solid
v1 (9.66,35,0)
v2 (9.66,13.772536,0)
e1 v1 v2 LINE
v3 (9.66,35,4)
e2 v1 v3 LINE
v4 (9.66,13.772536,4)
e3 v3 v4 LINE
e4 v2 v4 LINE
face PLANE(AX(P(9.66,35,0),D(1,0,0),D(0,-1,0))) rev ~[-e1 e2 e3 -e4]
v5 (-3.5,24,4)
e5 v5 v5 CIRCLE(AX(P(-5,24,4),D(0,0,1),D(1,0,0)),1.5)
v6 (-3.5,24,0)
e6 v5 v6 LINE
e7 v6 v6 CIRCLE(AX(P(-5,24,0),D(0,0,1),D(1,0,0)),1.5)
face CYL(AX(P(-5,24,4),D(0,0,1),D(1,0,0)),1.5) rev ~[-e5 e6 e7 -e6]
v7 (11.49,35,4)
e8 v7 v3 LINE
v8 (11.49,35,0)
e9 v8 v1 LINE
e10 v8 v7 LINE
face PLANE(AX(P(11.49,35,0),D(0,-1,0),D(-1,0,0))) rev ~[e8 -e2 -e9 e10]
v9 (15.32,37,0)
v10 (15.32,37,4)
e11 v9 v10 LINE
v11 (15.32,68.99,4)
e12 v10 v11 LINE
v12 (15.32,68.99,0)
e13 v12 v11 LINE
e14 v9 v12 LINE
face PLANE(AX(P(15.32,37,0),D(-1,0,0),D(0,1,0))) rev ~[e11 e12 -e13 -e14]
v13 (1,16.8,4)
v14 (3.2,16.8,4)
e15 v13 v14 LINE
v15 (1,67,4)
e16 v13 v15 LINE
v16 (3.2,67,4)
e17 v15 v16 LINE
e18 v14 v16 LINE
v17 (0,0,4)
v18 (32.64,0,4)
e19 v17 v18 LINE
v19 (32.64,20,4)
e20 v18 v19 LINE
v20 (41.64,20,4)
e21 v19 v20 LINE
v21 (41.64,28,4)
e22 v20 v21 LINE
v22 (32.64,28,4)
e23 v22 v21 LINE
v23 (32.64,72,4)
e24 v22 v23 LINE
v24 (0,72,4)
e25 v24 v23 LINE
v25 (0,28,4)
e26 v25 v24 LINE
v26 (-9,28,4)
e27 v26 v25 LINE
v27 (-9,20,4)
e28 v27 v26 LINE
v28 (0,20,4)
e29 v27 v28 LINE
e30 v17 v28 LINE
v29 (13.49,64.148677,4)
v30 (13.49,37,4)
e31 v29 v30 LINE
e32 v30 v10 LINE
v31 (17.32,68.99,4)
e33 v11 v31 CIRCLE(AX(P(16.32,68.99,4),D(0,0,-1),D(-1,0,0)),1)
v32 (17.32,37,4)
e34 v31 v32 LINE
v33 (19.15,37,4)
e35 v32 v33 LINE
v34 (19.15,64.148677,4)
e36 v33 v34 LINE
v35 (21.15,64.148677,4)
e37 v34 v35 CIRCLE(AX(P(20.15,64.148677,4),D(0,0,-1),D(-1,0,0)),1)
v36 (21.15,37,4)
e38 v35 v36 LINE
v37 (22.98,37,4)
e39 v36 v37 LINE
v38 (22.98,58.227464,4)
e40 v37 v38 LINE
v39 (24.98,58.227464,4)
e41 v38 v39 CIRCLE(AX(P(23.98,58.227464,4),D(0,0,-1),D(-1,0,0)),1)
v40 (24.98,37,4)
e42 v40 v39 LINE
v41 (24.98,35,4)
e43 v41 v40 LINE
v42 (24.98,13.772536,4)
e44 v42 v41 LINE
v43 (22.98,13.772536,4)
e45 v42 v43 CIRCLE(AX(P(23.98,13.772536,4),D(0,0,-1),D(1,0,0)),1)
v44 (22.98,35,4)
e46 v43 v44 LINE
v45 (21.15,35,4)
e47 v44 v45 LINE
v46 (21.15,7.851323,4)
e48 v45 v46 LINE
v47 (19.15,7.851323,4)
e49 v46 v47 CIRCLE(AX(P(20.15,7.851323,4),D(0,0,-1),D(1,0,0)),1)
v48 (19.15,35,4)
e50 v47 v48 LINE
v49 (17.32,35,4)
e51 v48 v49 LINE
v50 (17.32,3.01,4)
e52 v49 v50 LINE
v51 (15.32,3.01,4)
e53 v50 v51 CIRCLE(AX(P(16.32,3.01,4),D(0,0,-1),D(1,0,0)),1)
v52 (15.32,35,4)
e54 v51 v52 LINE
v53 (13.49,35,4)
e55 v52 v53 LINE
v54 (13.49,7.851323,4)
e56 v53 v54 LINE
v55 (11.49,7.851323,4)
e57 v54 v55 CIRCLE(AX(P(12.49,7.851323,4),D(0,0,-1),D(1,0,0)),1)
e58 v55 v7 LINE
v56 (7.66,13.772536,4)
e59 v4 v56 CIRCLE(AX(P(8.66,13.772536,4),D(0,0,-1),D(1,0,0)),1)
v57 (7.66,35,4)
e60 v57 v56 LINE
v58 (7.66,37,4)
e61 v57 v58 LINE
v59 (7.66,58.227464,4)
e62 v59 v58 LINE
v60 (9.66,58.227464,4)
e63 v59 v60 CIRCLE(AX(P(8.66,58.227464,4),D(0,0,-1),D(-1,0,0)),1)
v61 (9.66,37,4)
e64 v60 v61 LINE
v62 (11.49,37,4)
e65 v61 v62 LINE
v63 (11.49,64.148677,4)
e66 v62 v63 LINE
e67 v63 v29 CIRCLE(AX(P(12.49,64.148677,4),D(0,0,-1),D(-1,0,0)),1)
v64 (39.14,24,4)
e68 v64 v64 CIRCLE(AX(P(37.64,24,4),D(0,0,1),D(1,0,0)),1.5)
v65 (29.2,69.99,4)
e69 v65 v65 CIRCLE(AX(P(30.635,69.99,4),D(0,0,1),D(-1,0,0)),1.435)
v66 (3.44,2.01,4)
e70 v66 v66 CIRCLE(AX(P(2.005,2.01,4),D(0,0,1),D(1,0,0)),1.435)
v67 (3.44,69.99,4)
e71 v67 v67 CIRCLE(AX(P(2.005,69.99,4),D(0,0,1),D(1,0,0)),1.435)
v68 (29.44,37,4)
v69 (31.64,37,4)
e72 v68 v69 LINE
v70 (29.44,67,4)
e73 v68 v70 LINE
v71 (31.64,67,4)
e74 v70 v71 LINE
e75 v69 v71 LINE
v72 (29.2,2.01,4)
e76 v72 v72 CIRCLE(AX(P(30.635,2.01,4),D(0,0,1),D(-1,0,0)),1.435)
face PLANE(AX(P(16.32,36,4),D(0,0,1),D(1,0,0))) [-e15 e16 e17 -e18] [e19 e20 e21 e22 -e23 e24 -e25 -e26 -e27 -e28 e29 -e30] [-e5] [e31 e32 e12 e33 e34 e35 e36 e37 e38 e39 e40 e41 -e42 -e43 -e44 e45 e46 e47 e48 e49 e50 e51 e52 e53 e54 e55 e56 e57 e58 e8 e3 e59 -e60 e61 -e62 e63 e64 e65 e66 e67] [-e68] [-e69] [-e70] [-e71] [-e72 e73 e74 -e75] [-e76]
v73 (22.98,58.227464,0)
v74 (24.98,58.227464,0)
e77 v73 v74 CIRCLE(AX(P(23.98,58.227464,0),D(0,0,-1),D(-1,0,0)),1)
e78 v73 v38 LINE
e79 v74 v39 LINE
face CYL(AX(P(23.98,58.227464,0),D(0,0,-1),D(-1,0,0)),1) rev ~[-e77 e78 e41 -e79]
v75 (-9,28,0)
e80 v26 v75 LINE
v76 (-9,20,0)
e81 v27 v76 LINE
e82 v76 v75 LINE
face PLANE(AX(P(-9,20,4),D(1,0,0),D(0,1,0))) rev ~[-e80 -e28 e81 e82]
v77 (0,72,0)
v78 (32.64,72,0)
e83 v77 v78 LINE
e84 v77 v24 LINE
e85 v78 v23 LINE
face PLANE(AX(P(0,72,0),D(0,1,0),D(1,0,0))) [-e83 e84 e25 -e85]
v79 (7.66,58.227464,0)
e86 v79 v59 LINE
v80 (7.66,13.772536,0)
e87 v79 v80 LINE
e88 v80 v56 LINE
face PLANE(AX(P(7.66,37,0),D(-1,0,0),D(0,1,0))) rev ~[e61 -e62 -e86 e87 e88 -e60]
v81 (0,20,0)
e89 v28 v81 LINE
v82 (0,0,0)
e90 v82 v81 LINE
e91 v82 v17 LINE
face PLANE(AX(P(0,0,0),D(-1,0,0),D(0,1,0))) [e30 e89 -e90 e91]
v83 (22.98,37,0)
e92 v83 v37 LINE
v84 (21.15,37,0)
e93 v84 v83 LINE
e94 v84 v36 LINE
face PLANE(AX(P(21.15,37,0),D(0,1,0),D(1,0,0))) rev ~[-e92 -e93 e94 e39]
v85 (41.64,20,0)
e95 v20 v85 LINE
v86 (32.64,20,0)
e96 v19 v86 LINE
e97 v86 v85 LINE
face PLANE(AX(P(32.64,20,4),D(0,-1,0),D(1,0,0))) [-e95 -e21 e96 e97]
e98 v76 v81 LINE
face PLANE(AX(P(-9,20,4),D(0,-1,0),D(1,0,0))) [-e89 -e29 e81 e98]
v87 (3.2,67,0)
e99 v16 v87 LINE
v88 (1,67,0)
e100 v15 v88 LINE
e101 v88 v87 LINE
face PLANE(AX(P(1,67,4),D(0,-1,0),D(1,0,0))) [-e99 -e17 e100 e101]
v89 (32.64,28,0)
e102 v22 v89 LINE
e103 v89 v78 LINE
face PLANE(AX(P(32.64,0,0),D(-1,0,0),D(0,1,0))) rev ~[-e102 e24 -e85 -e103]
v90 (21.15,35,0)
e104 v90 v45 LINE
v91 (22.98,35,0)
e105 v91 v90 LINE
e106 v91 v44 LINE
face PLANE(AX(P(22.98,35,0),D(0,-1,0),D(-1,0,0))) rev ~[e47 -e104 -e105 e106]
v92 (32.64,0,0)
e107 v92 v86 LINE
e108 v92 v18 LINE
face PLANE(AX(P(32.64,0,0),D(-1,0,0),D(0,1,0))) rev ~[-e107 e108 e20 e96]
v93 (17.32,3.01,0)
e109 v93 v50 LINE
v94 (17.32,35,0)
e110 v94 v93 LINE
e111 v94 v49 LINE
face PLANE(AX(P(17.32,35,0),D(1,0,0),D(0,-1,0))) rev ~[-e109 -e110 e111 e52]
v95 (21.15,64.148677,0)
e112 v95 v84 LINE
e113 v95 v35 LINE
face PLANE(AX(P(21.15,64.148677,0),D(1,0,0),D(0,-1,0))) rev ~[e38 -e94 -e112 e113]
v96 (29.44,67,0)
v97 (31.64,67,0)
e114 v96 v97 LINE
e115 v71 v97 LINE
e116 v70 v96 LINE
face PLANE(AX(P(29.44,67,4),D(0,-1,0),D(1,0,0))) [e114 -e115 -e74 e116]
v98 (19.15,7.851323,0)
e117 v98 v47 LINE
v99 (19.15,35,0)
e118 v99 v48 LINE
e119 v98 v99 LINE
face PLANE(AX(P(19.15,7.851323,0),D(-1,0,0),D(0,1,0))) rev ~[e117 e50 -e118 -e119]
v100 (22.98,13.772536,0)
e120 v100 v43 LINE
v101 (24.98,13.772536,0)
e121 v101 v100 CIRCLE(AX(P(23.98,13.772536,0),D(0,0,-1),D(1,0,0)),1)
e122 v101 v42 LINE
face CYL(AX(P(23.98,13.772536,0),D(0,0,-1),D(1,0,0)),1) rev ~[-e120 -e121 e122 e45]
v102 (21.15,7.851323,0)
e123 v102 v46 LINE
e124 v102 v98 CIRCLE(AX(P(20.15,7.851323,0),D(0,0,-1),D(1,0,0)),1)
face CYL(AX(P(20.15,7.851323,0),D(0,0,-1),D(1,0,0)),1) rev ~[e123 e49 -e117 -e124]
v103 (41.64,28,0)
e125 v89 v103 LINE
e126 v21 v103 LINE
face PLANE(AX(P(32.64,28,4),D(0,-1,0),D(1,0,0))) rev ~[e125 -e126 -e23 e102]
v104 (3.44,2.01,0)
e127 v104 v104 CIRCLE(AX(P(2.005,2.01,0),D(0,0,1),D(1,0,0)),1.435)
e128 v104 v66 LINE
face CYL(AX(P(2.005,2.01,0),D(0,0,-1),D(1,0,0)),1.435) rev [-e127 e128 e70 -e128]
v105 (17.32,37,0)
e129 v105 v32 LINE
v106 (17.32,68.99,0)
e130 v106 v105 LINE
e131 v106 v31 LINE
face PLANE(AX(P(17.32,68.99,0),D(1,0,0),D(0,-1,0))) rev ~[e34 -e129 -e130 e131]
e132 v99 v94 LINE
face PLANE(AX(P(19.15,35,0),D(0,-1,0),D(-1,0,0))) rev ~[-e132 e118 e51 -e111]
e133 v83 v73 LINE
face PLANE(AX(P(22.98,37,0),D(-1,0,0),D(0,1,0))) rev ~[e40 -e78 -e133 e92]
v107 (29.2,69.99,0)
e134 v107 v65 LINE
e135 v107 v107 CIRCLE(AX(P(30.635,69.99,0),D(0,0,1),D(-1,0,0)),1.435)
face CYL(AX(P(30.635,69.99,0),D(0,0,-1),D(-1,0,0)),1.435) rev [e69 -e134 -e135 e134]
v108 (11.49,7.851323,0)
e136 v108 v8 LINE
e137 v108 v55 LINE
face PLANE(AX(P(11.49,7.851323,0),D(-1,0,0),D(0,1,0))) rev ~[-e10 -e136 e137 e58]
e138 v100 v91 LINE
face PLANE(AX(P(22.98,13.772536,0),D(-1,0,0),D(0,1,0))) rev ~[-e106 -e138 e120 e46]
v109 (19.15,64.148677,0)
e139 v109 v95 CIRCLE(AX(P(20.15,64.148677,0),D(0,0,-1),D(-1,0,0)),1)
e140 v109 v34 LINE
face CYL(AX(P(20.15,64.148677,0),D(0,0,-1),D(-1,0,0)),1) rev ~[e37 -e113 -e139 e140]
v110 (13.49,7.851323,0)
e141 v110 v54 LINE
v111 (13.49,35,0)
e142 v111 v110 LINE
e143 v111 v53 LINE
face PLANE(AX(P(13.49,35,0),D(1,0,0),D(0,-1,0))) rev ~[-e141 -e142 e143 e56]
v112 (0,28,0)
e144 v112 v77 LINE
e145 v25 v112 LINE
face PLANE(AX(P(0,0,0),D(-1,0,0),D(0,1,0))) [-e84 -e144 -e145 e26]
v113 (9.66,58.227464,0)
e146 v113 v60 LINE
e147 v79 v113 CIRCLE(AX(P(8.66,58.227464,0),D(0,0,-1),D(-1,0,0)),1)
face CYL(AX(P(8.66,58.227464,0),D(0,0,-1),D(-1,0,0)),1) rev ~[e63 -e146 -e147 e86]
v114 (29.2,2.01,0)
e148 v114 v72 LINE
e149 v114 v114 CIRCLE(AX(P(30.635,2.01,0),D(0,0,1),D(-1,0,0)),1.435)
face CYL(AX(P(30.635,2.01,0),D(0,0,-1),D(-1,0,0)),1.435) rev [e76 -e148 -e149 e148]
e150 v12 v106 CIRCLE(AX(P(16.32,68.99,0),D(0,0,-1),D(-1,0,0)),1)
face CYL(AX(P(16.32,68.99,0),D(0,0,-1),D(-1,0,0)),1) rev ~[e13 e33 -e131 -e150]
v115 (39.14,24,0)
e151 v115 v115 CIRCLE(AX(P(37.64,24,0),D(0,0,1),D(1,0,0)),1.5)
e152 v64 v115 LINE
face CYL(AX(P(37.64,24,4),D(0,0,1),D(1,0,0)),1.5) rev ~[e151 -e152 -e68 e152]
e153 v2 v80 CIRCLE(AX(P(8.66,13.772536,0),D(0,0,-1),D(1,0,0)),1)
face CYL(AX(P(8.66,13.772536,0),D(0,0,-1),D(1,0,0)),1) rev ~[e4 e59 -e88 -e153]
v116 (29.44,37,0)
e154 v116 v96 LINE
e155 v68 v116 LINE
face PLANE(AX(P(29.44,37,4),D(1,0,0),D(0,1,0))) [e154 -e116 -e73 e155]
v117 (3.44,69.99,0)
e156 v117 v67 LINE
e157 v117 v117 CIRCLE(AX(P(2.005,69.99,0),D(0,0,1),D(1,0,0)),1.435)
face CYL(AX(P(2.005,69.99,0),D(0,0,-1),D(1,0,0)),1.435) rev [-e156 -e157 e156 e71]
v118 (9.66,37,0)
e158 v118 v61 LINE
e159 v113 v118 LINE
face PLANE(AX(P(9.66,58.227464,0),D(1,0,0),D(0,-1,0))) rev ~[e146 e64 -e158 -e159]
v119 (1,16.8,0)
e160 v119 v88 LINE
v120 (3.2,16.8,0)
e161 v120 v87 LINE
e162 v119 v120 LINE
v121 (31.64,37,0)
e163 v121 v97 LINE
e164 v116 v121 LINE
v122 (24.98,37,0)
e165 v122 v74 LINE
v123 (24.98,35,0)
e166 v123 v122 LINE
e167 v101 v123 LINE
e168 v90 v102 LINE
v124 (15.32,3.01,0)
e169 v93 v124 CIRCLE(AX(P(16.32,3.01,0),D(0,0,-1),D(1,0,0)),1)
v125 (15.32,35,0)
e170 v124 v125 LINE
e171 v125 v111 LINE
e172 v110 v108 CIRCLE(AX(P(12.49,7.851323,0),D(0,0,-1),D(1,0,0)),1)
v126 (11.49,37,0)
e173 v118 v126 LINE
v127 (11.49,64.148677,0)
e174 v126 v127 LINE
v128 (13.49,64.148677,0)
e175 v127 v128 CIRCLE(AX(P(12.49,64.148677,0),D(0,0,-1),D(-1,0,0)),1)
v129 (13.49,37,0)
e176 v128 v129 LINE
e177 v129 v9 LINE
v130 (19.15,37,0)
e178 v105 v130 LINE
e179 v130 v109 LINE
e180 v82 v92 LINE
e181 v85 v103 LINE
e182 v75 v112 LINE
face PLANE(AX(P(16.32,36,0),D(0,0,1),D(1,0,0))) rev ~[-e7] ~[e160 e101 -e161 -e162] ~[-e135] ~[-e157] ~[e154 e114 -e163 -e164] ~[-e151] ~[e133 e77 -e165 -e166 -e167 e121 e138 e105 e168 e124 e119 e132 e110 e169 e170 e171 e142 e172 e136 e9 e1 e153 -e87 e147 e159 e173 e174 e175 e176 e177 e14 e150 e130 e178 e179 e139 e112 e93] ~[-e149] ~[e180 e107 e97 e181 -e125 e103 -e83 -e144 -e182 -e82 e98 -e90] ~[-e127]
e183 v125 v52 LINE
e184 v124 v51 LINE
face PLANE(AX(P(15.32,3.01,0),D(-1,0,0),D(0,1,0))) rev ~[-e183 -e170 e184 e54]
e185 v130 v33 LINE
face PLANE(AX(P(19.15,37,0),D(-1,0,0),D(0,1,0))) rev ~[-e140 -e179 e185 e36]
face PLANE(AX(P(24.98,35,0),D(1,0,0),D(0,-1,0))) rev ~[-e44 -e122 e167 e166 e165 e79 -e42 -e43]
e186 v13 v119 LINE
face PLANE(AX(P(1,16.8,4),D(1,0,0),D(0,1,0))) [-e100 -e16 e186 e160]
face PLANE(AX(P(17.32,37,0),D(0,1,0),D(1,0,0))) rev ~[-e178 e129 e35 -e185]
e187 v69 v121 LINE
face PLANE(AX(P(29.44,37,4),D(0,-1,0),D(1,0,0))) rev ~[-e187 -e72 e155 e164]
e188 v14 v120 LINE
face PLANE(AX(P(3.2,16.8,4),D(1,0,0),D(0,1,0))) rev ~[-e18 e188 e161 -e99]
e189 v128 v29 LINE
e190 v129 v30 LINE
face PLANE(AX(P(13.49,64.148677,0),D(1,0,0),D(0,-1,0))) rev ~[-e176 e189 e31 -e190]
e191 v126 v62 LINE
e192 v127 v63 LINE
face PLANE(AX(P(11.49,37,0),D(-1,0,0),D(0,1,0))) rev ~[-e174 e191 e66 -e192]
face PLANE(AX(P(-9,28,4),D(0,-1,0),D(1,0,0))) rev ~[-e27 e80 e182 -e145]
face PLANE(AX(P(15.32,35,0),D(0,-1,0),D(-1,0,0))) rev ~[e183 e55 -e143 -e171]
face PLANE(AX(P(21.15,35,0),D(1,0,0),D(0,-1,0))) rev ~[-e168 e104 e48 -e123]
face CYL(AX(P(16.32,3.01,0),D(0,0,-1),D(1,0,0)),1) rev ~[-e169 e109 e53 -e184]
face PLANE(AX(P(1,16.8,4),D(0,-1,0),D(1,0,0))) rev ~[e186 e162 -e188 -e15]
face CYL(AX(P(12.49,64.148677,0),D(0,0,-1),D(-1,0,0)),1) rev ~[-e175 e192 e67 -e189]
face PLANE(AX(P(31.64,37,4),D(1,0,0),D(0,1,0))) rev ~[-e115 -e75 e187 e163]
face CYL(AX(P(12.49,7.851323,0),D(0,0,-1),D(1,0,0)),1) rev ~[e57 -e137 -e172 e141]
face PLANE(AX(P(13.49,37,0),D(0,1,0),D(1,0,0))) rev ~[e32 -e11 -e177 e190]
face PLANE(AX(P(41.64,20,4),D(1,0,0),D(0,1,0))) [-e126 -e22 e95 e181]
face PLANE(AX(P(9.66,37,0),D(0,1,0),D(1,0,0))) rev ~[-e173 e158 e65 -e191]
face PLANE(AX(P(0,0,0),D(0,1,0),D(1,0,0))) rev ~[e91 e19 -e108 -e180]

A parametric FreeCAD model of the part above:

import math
import FreeCAD as App
import Part
import Sketcher
from FreeCAD import Vector
Q = App.Units.Quantity


def add_polygon(sketch, points):
    """Adds a closed chain of lines whose ends are joined by coincident constraints."""
    first, n = sketch.GeometryCount, len(points)
    for a, b in zip(points, points[1:] + points[:1]):
        sketch.addGeometry(Part.LineSegment(App.Vector(*a, 0), App.Vector(*b, 0)), False)
    for i in range(n):
        sketch.addConstraint(Sketcher.Constraint("Coincident", first + i, 2, first + (i + 1) % n, 1))

doc = App.newDocument("Part")
body = doc.addObject("PartDesign::Body", "Body")

# Sketch on XY plane
sketch1 = body.newObject("Sketcher::SketchObject", "Sketch")
sketch1.AttachmentSupport = (doc.getObject("XY_Plane"), [""])
sketch1.MapMode = "FlatFace"
add_polygon(sketch1, [(0, 72), (0, 0), (32.64, 0), (32.64, 72)])  # lines 0-3
sketch1.addGeometry(Part.Circle(Vector(2.005, 2.01, 0), Vector(0, 0, 1), 1.435), False)  # 4
sketch1.addGeometry(Part.Circle(Vector(30.635, 2.01, 0), Vector(0, 0, 1), 1.435), False)  # 5
sketch1.addGeometry(Part.Circle(Vector(2.005, 69.99, 0), Vector(0, 0, 1), 1.435), False)  # 6
sketch1.addGeometry(Part.ArcOfCircle(Part.Circle(Vector(16.32, 3.01, 0), Vector(0, 0, 1), 1), math.radians(180), math.radians(360)), False)  # 7
sketch1.addGeometry(Part.LineSegment(Vector(15.32, 3.01, 0), Vector(15.32, 35, 0)), False)  # 8
sketch1.addGeometry(Part.LineSegment(Vector(15.32, 35, 0), Vector(13.49, 35, 0)), False)  # 9
sketch1.addGeometry(Part.LineSegment(Vector(13.49, 35, 0), Vector(13.49, 7.851323, 0)), False)  # 10
sketch1.addGeometry(Part.ArcOfCircle(Part.Circle(Vector(12.49, 7.851323, 0), Vector(0, 0, 1), 1), math.radians(180), math.radians(360)), False)  # 11
sketch1.addGeometry(Part.LineSegment(Vector(11.49, 7.851323, 0), Vector(11.49, 35, 0)), False)  # 12
sketch1.addGeometry(Part.LineSegment(Vector(11.49, 35, 0), Vector(9.66, 35, 0)), False)  # 13
sketch1.addGeometry(Part.LineSegment(Vector(9.66, 35, 0), Vector(9.66, 13.772536, 0)), False)  # 14
sketch1.addGeometry(Part.ArcOfCircle(Part.Circle(Vector(8.66, 13.772536, 0), Vector(0, 0, 1), 1), math.radians(180), math.radians(360)), False)  # 15
sketch1.addGeometry(Part.LineSegment(Vector(7.66, 13.772536, 0), Vector(7.66, 35, 0)), False)  # 16
sketch1.addGeometry(Part.LineSegment(Vector(7.66, 35, 0), Vector(5.83, 35, 0)), False)  # 17
sketch1.addGeometry(Part.LineSegment(Vector(5.83, 35, 0), Vector(5.83, 23.099052, 0)), False)  # 18
sketch1.addGeometry(Part.ArcOfCircle(Part.Circle(Vector(4.83, 23.099052, 0), Vector(0, 0, 1), 1), math.radians(180), math.radians(360)), False)  # 19
sketch1.addGeometry(Part.LineSegment(Vector(3.83, 23.099052, 0), Vector(3.83, 35, 0)), False)  # 20
sketch1.addGeometry(Part.LineSegment(Vector(3.83, 35, 0), Vector(3.005, 35, 0)), False)  # 21
sketch1.addGeometry(Part.ArcOfCircle(Part.Circle(Vector(3.005, 36, 0), Vector(0, 0, 1), 1), math.radians(90), math.radians(270)), False)  # 22
sketch1.addGeometry(Part.LineSegment(Vector(3.005, 37, 0), Vector(3.83, 37, 0)), False)  # 23
sketch1.addGeometry(Part.LineSegment(Vector(3.83, 37, 0), Vector(3.83, 48.900948, 0)), False)  # 24
sketch1.addGeometry(Part.ArcOfCircle(Part.Circle(Vector(4.83, 48.900948, 0), Vector(0, 0, 1), 1), math.radians(0), math.radians(180)), False)  # 25
sketch1.addGeometry(Part.LineSegment(Vector(5.83, 48.900948, 0), Vector(5.83, 37, 0)), False)  # 26
sketch1.addGeometry(Part.LineSegment(Vector(5.83, 37, 0), Vector(7.66, 37, 0)), False)  # 27
sketch1.addGeometry(Part.LineSegment(Vector(7.66, 37, 0), Vector(7.66, 58.227464, 0)), False)  # 28
sketch1.addGeometry(Part.ArcOfCircle(Part.Circle(Vector(8.66, 58.227464, 0), Vector(0, 0, 1), 1), math.radians(0), math.radians(180)), False)  # 29
sketch1.addGeometry(Part.LineSegment(Vector(9.66, 58.227464, 0), Vector(9.66, 37, 0)), False)  # 30
sketch1.addGeometry(Part.LineSegment(Vector(9.66, 37, 0), Vector(11.49, 37, 0)), False)  # 31
sketch1.addGeometry(Part.LineSegment(Vector(11.49, 37, 0), Vector(11.49, 64.148677, 0)), False)  # 32
sketch1.addGeometry(Part.ArcOfCircle(Part.Circle(Vector(12.49, 64.148677, 0), Vector(0, 0, 1), 1), math.radians(0), math.radians(180)), False)  # 33
sketch1.addGeometry(Part.LineSegment(Vector(13.49, 64.148677, 0), Vector(13.49, 37, 0)), False)  # 34
sketch1.addGeometry(Part.LineSegment(Vector(13.49, 37, 0), Vector(15.32, 37, 0)), False)  # 35
sketch1.addGeometry(Part.LineSegment(Vector(15.32, 37, 0), Vector(15.32, 68.99, 0)), False)  # 36
sketch1.addGeometry(Part.ArcOfCircle(Part.Circle(Vector(16.32, 68.99, 0), Vector(0, 0, 1), 1), math.radians(0), math.radians(180)), False)  # 37
sketch1.addGeometry(Part.LineSegment(Vector(17.32, 68.99, 0), Vector(17.32, 37, 0)), False)  # 38
sketch1.addGeometry(Part.LineSegment(Vector(17.32, 37, 0), Vector(19.15, 37, 0)), False)  # 39
sketch1.addGeometry(Part.LineSegment(Vector(19.15, 37, 0), Vector(19.15, 64.148677, 0)), False)  # 40
sketch1.addGeometry(Part.ArcOfCircle(Part.Circle(Vector(20.15, 64.148677, 0), Vector(0, 0, 1), 1), math.radians(0), math.radians(180)), False)  # 41
sketch1.addGeometry(Part.LineSegment(Vector(21.15, 64.148677, 0), Vector(21.15, 37, 0)), False)  # 42
sketch1.addGeometry(Part.LineSegment(Vector(21.15, 37, 0), Vector(22.98, 37, 0)), False)  # 43
sketch1.addGeometry(Part.LineSegment(Vector(22.98, 37, 0), Vector(22.98, 58.227464, 0)), False)  # 44
sketch1.addGeometry(Part.ArcOfCircle(Part.Circle(Vector(23.98, 58.227464, 0), Vector(0, 0, 1), 1), math.radians(0), math.radians(180)), False)  # 45
sketch1.addGeometry(Part.LineSegment(Vector(24.98, 58.227464, 0), Vector(24.98, 37, 0)), False)  # 46
sketch1.addGeometry(Part.LineSegment(Vector(24.98, 37, 0), Vector(26.81, 37, 0)), False)  # 47
sketch1.addGeometry(Part.LineSegment(Vector(26.81, 37, 0), Vector(26.81, 48.900948, 0)), False)  # 48
sketch1.addGeometry(Part.ArcOfCircle(Part.Circle(Vector(27.81, 48.900948, 0), Vector(0, 0, 1), 1), math.radians(0), math.radians(180)), False)  # 49
sketch1.addGeometry(Part.LineSegment(Vector(28.81, 48.900948, 0), Vector(28.81, 37, 0)), False)  # 50
sketch1.addGeometry(Part.LineSegment(Vector(28.81, 37, 0), Vector(29.635, 37, 0)), False)  # 51
sketch1.addGeometry(Part.ArcOfCircle(Part.Circle(Vector(29.635, 36, 0), Vector(0, 0, 1), 1), math.radians(-90), math.radians(90)), False)  # 52
sketch1.addGeometry(Part.LineSegment(Vector(29.635, 35, 0), Vector(28.81, 35, 0)), False)  # 53
sketch1.addGeometry(Part.LineSegment(Vector(28.81, 35, 0), Vector(28.81, 23.099052, 0)), False)  # 54
sketch1.addGeometry(Part.ArcOfCircle(Part.Circle(Vector(27.81, 23.099052, 0), Vector(0, 0, 1), 1), math.radians(180), math.radians(360)), False)  # 55
sketch1.addGeometry(Part.LineSegment(Vector(26.81, 23.099052, 0), Vector(26.81, 35, 0)), False)  # 56
sketch1.addGeometry(Part.LineSegment(Vector(26.81, 35, 0), Vector(24.98, 35, 0)), False)  # 57
sketch1.addGeometry(Part.LineSegment(Vector(24.98, 35, 0), Vector(24.98, 13.772536, 0)), False)  # 58
sketch1.addGeometry(Part.ArcOfCircle(Part.Circle(Vector(23.98, 13.772536, 0), Vector(0, 0, 1), 1), math.radians(180), math.radians(360)), False)  # 59
sketch1.addGeometry(Part.LineSegment(Vector(22.98, 13.772536, 0), Vector(22.98, 35, 0)), False)  # 60
sketch1.addGeometry(Part.LineSegment(Vector(22.98, 35, 0), Vector(21.15, 35, 0)), False)  # 61
sketch1.addGeometry(Part.LineSegment(Vector(21.15, 35, 0), Vector(21.15, 7.851323, 0)), False)  # 62
sketch1.addGeometry(Part.ArcOfCircle(Part.Circle(Vector(20.15, 7.851323, 0), Vector(0, 0, 1), 1), math.radians(180), math.radians(360)), False)  # 63
sketch1.addGeometry(Part.LineSegment(Vector(19.15, 7.851323, 0), Vector(19.15, 35, 0)), False)  # 64
sketch1.addGeometry(Part.LineSegment(Vector(19.15, 35, 0), Vector(17.32, 35, 0)), False)  # 65
sketch1.addGeometry(Part.LineSegment(Vector(17.32, 35, 0), Vector(17.32, 3.01, 0)), False)  # 66
sketch1.addGeometry(Part.Circle(Vector(30.635, 69.99, 0), Vector(0, 0, 1), 1.435), False)  # 67
sketch1.addConstraint([
    Sketcher.Constraint("Tangent", 7, 1, 8, 1),
    Sketcher.Constraint("Coincident", 8, 2, 9, 1),
    Sketcher.Constraint("Coincident", 9, 2, 10, 1),
    Sketcher.Constraint("Tangent", 10, 2, 11, 2),
    Sketcher.Constraint("Tangent", 11, 1, 12, 1),
    Sketcher.Constraint("Coincident", 12, 2, 13, 1),
    Sketcher.Constraint("Coincident", 13, 2, 14, 1),
    Sketcher.Constraint("Tangent", 14, 2, 15, 2),
    Sketcher.Constraint("Tangent", 15, 1, 16, 1),
    Sketcher.Constraint("Coincident", 16, 2, 17, 1),
    Sketcher.Constraint("Coincident", 17, 2, 18, 1),
    Sketcher.Constraint("Tangent", 18, 2, 19, 2),
    Sketcher.Constraint("Tangent", 19, 1, 20, 1),
    Sketcher.Constraint("Coincident", 20, 2, 21, 1),
    Sketcher.Constraint("Tangent", 21, 2, 22, 2),
    Sketcher.Constraint("Tangent", 22, 1, 23, 1),
    Sketcher.Constraint("Coincident", 23, 2, 24, 1),
    Sketcher.Constraint("Tangent", 24, 2, 25, 2),
    Sketcher.Constraint("Tangent", 25, 1, 26, 1),
    Sketcher.Constraint("Coincident", 26, 2, 27, 1),
    Sketcher.Constraint("Coincident", 27, 2, 28, 1),
    Sketcher.Constraint("Tangent", 28, 2, 29, 2),
    Sketcher.Constraint("Tangent", 29, 1, 30, 1),
    Sketcher.Constraint("Coincident", 30, 2, 31, 1),
    Sketcher.Constraint("Coincident", 31, 2, 32, 1),
    Sketcher.Constraint("Tangent", 32, 2, 33, 2),
    Sketcher.Constraint("Tangent", 33, 1, 34, 1),
    Sketcher.Constraint("Coincident", 34, 2, 35, 1),
    Sketcher.Constraint("Coincident", 35, 2, 36, 1),
    Sketcher.Constraint("Tangent", 36, 2, 37, 2),
    Sketcher.Constraint("Tangent", 37, 1, 38, 1),
    Sketcher.Constraint("Coincident", 38, 2, 39, 1),
    Sketcher.Constraint("Coincident", 39, 2, 40, 1),
    Sketcher.Constraint("Tangent", 40, 2, 41, 2),
    Sketcher.Constraint("Tangent", 41, 1, 42, 1),
    Sketcher.Constraint("Coincident", 42, 2, 43, 1),
    Sketcher.Constraint("Coincident", 43, 2, 44, 1),
    Sketcher.Constraint("Tangent", 44, 2, 45, 2),
    Sketcher.Constraint("Tangent", 45, 1, 46, 1),
    Sketcher.Constraint("Coincident", 46, 2, 47, 1),
    Sketcher.Constraint("Coincident", 47, 2, 48, 1),
    Sketcher.Constraint("Tangent", 48, 2, 49, 2),
    Sketcher.Constraint("Tangent", 49, 1, 50, 1),
    Sketcher.Constraint("Coincident", 50, 2, 51, 1),
    Sketcher.Constraint("Tangent", 51, 2, 52, 2),
    Sketcher.Constraint("Tangent", 52, 1, 53, 1),
    Sketcher.Constraint("Coincident", 53, 2, 54, 1),
    Sketcher.Constraint("Tangent", 54, 2, 55, 2),
    Sketcher.Constraint("Tangent", 55, 1, 56, 1),
    Sketcher.Constraint("Coincident", 56, 2, 57, 1),
    Sketcher.Constraint("Coincident", 57, 2, 58, 1),
    Sketcher.Constraint("Tangent", 58, 2, 59, 2),
    Sketcher.Constraint("Tangent", 59, 1, 60, 1),
    Sketcher.Constraint("Coincident", 60, 2, 61, 1),
    Sketcher.Constraint("Coincident", 61, 2, 62, 1),
    Sketcher.Constraint("Tangent", 62, 2, 63, 2),
    Sketcher.Constraint("Tangent", 63, 1, 64, 1),
    Sketcher.Constraint("Coincident", 64, 2, 65, 1),
    Sketcher.Constraint("Coincident", 65, 2, 66, 1),
    Sketcher.Constraint("Tangent", 66, 2, 7, 2),
    Sketcher.Constraint("Vertical", 0),
    Sketcher.Constraint("Horizontal", 1),
    Sketcher.Constraint("Vertical", 2),
    Sketcher.Constraint("Horizontal", 3),
    Sketcher.Constraint("Vertical", 8),
    Sketcher.Constraint("Horizontal", 9),
    Sketcher.Constraint("Vertical", 10),
    Sketcher.Constraint("Vertical", 12),
    Sketcher.Constraint("Horizontal", 13),
    Sketcher.Constraint("Vertical", 14),
    Sketcher.Constraint("Vertical", 16),
    Sketcher.Constraint("Horizontal", 17),
    Sketcher.Constraint("Vertical", 18),
    Sketcher.Constraint("Vertical", 20),
    Sketcher.Constraint("Horizontal", 21),
    Sketcher.Constraint("Horizontal", 23),
    Sketcher.Constraint("Vertical", 24),
    Sketcher.Constraint("Vertical", 26),
    Sketcher.Constraint("Horizontal", 27),
    Sketcher.Constraint("Vertical", 28),
    Sketcher.Constraint("Vertical", 30),
    Sketcher.Constraint("Horizontal", 31),
    Sketcher.Constraint("Vertical", 32),
    Sketcher.Constraint("Vertical", 34),
    Sketcher.Constraint("Horizontal", 35),
    Sketcher.Constraint("Vertical", 36),
    Sketcher.Constraint("Vertical", 38),
    Sketcher.Constraint("Horizontal", 39),
    Sketcher.Constraint("Vertical", 40),
    Sketcher.Constraint("Vertical", 42),
    Sketcher.Constraint("Horizontal", 43),
    Sketcher.Constraint("Vertical", 44),
    Sketcher.Constraint("Vertical", 46),
    Sketcher.Constraint("Horizontal", 47),
    Sketcher.Constraint("Vertical", 48),
    Sketcher.Constraint("Vertical", 50),
    Sketcher.Constraint("Horizontal", 51),
    Sketcher.Constraint("Horizontal", 53),
    Sketcher.Constraint("Vertical", 54),
    Sketcher.Constraint("Vertical", 56),
    Sketcher.Constraint("Horizontal", 57),
    Sketcher.Constraint("Vertical", 58),
    Sketcher.Constraint("Vertical", 60),
    Sketcher.Constraint("Horizontal", 61),
    Sketcher.Constraint("Vertical", 62),
    Sketcher.Constraint("Vertical", 64),
    Sketcher.Constraint("Horizontal", 65),
    Sketcher.Constraint("Vertical", 66),
    Sketcher.Constraint("Coincident", 0, 2, -1, 1),
    Sketcher.Constraint("Equal", 4, 5),
    Sketcher.Constraint("Equal", 5, 6),
    Sketcher.Constraint("Equal", 7, 11),
    Sketcher.Constraint("Equal", 11, 15),
    Sketcher.Constraint("Equal", 15, 19),
    Sketcher.Constraint("Equal", 19, 22),
    Sketcher.Constraint("Equal", 22, 25),
    Sketcher.Constraint("Equal", 25, 29),
    Sketcher.Constraint("Equal", 29, 33),
    Sketcher.Constraint("Equal", 33, 37),
    Sketcher.Constraint("Equal", 37, 41),
    Sketcher.Constraint("Equal", 41, 45),
    Sketcher.Constraint("Equal", 45, 49),
    Sketcher.Constraint("Equal", 49, 52),
    Sketcher.Constraint("Equal", 52, 55),
    Sketcher.Constraint("Equal", 55, 59),
    Sketcher.Constraint("Equal", 59, 63),
    Sketcher.Constraint("Equal", 6, 67),
    Sketcher.Constraint("Horizontal", 4, 3, 5, 3),
    Sketcher.Constraint("Horizontal", 33, 3, 41, 3),
    Sketcher.Constraint("Horizontal", 29, 3, 45, 3),
    Sketcher.Constraint("Horizontal", 25, 3, 49, 3),
    Sketcher.Constraint("Horizontal", 22, 3, 52, 3),
    Sketcher.Constraint("Horizontal", 19, 3, 55, 3),
    Sketcher.Constraint("Horizontal", 15, 3, 59, 3),
    Sketcher.Constraint("Horizontal", 11, 3, 63, 3),
    Sketcher.Constraint("Horizontal", 6, 3, 67, 3),
    Sketcher.Constraint("Horizontal", 9, 2, 12, 2),
    Sketcher.Constraint("Horizontal", 13, 2, 16, 2),
    Sketcher.Constraint("Horizontal", 17, 2, 20, 2),
    Sketcher.Constraint("Horizontal", 23, 2, 26, 2),
    Sketcher.Constraint("Horizontal", 27, 2, 30, 2),
    Sketcher.Constraint("Horizontal", 31, 2, 34, 2),
    Sketcher.Constraint("Horizontal", 35, 2, 38, 2),
    Sketcher.Constraint("Horizontal", 39, 2, 42, 2),
    Sketcher.Constraint("Horizontal", 43, 2, 46, 2),
    Sketcher.Constraint("Horizontal", 53, 2, 56, 2),
    Sketcher.Constraint("Horizontal", 57, 2, 60, 2),
    Sketcher.Constraint("Horizontal", 61, 2, 64, 2),
    Sketcher.Constraint("Vertical", 4, 3, 6, 3),
    Sketcher.Constraint("Vertical", 19, 3, 25, 3),
    Sketcher.Constraint("Vertical", 15, 3, 29, 3),
    Sketcher.Constraint("Vertical", 11, 3, 33, 3),
    Sketcher.Constraint("Vertical", 7, 3, 37, 3),
    Sketcher.Constraint("Vertical", 49, 3, 55, 3),
    Sketcher.Constraint("Vertical", 45, 3, 59, 3),
    Sketcher.Constraint("Vertical", 41, 3, 63, 3),
    Sketcher.Constraint("Vertical", 5, 3, 67, 3),
    Sketcher.Constraint("Equal", 9, 13),
    Sketcher.Constraint("Equal", 13, 17),
    Sketcher.Constraint("Equal", 35, 39),
    Sketcher.Constraint("Equal", 39, 43),
    Sketcher.Constraint("Equal", 43, 47),
    Sketcher.Constraint("Equal", 23, 51),
    Sketcher.Constraint("Equal", 20, 24),
    Sketcher.Constraint("Equal", 16, 28),
    Sketcher.Constraint("Equal", 12, 32),
    Sketcher.Constraint("Equal", 8, 36),
    Sketcher.Constraint("Radius", 7, Q("1 mm")),
    Sketcher.Constraint("Diameter", 4, Q("2.87 mm")),
    Sketcher.Constraint("DistanceY", 0, 2, 0, 1, Q("72 mm")),
    Sketcher.Constraint("DistanceY", -1, 1, 22, 3, Q("36 mm")),
    Sketcher.Constraint("DistanceX", 1, 1, 1, 2, Q("32.64 mm")),
    Sketcher.Constraint("DistanceX", 9, 2, 9, 1, Q("1.83 mm")),
    Sketcher.Constraint("DistanceY", 8, 1, 8, 2, Q("31.99 mm")),
    Sketcher.Constraint("DistanceX", 21, 2, 21, 1, Q("0.825 mm")),
    Sketcher.Constraint("DistanceY", -1, 1, 4, 3, Q("2.01 mm")),
    Sketcher.Constraint("DistanceY", -1, 1, 6, 3, Q("69.99 mm")),
    Sketcher.Constraint("DistanceX", -1, 1, 7, 3, Q("16.32 mm")),
    Sketcher.Constraint("DistanceX", -1, 1, 4, 3, Q("2.005 mm")),
    Sketcher.Constraint("DistanceX", -1, 1, 5, 3, Q("30.635 mm")),
    Sketcher.Constraint("DistanceY", 10, 2, 10, 1, Q("27.148677 mm")),
    Sketcher.Constraint("DistanceY", 14, 2, 14, 1, Q("21.227464 mm")),
    Sketcher.Constraint("DistanceY", 18, 2, 18, 1, Q("11.900948 mm")),
])
pad1 = body.newObject("PartDesign::Pad", "Pad")
pad1.Profile = sketch1
pad1.Length = 4

# Sketch on XY plane
sketch2 = body.newObject("Sketcher::SketchObject", "Sketch001")
sketch2.AttachmentSupport = (doc.getObject("XY_Plane"), [""])
sketch2.MapMode = "FlatFace"
sketch2.AttachmentOffset = App.Placement(Vector(0, 0, 4), App.Rotation())
add_polygon(sketch2, [(-9, 28), (-9, 20), (0, 20), (0, 28)])  # lines 0-3
sketch2.addGeometry(Part.Circle(Vector(-5, 24, 0), Vector(0, 0, 1), 1.5), False)  # 4
add_polygon(sketch2, [(32.64, 28), (32.64, 20), (41.64, 20), (41.64, 28)])  # lines 5-8
sketch2.addGeometry(Part.Circle(Vector(37.64, 24, 0), Vector(0, 0, 1), 1.5), False)  # 9
sketch2.addConstraint([
    Sketcher.Constraint("Vertical", 0),
    Sketcher.Constraint("Horizontal", 1),
    Sketcher.Constraint("Vertical", 2),
    Sketcher.Constraint("Horizontal", 3),
    Sketcher.Constraint("Vertical", 5),
    Sketcher.Constraint("Horizontal", 6),
    Sketcher.Constraint("Vertical", 7),
    Sketcher.Constraint("Horizontal", 8),
    Sketcher.Constraint("Equal", 4, 9),
    Sketcher.Constraint("PointOnObject", 1, 2, -2),
    Sketcher.Constraint("Horizontal", 4, 3, 9, 3),
    Sketcher.Constraint("Horizontal", 1, 2, 5, 2),
    Sketcher.Constraint("Horizontal", 3, 2, 7, 2),
    Sketcher.Constraint("Equal", 3, 6),
    Sketcher.Constraint("Diameter", 4, Q("3 mm")),
    Sketcher.Constraint("DistanceX", 1, 1, 1, 2, Q("9 mm")),
    Sketcher.Constraint("DistanceY", 0, 2, 0, 1, Q("8 mm")),
    Sketcher.Constraint("DistanceX", 4, 3, -1, 1, Q("5 mm")),
    Sketcher.Constraint("DistanceY", -1, 1, 4, 3, Q("24 mm")),
    Sketcher.Constraint("DistanceY", -1, 1, 0, 2, Q("20 mm")),
    Sketcher.Constraint("DistanceX", 5, 2, 9, 3, Q("5 mm")),
    Sketcher.Constraint("DistanceX", -1, 1, 9, 3, Q("37.64 mm")),
])
pad2 = body.newObject("PartDesign::Pad", "Pad001")
pad2.Profile = sketch2
pad2.Length = 4
pad2.Reversed = True

# Sketch on XY plane
sketch3 = body.newObject("Sketcher::SketchObject", "Sketch002")
sketch3.AttachmentSupport = (doc.getObject("XY_Plane"), [""])
sketch3.MapMode = "FlatFace"
sketch3.AttachmentOffset = App.Placement(Vector(0, 0, 4), App.Rotation())
add_polygon(sketch3, [(1.691728, 51), (1.691728, 21), (7.66, 21), (7.66, 51)])  # lines 0-3
add_polygon(sketch3, [(24.98, 51), (24.98, 21), (30.948272, 21), (30.948272, 51)])  # lines 4-7
sketch3.addConstraint([
    Sketcher.Constraint("Vertical", 0),
    Sketcher.Constraint("Horizontal", 1),
    Sketcher.Constraint("Vertical", 2),
    Sketcher.Constraint("Horizontal", 3),
    Sketcher.Constraint("Vertical", 4),
    Sketcher.Constraint("Horizontal", 5),
    Sketcher.Constraint("Vertical", 6),
    Sketcher.Constraint("Horizontal", 7),
    Sketcher.Constraint("Horizontal", 1, 2, 4, 2),
    Sketcher.Constraint("Horizontal", 3, 2, 6, 2),
    Sketcher.Constraint("Equal", 3, 5),
    Sketcher.Constraint("DistanceY", 0, 2, 0, 1, Q("30 mm")),
    Sketcher.Constraint("DistanceY", -1, 1, 0, 2, Q("21 mm")),
    Sketcher.Constraint("DistanceX", -1, 1, 1, 2, Q("7.66 mm")),
    Sketcher.Constraint("DistanceX", -1, 1, 4, 2, Q("24.98 mm")),
    Sketcher.Constraint("DistanceX", 1, 1, 1, 2, Q("5.968272 mm")),
])
pad3 = body.newObject("PartDesign::Pad", "Pad002")
pad3.Profile = sketch3
pad3.Length = 4
pad3.Reversed = True

# Sketch on XY plane
sketch4 = body.newObject("Sketcher::SketchObject", "Sketch003")
sketch4.AttachmentSupport = (doc.getObject("XY_Plane"), [""])
sketch4.MapMode = "FlatFace"
sketch4.AttachmentOffset = App.Placement(Vector(0, 0, 4), App.Rotation())
add_polygon(sketch4, [(1, 67), (1, 16.8), (3.2, 16.8), (3.2, 67)])  # lines 0-3
add_polygon(sketch4, [(29.44, 67), (29.44, 37), (31.64, 37), (31.64, 67)])  # lines 4-7
sketch4.addConstraint([
    Sketcher.Constraint("Vertical", 0),
    Sketcher.Constraint("Horizontal", 1),
    Sketcher.Constraint("Vertical", 2),
    Sketcher.Constraint("Horizontal", 3),
    Sketcher.Constraint("Vertical", 4),
    Sketcher.Constraint("Horizontal", 5),
    Sketcher.Constraint("Vertical", 6),
    Sketcher.Constraint("Horizontal", 7),
    Sketcher.Constraint("Horizontal", 3, 2, 6, 2),
    Sketcher.Constraint("Equal", 3, 5),
    Sketcher.Constraint("DistanceY", 4, 2, 4, 1, Q("30 mm")),
    Sketcher.Constraint("DistanceX", 1, 1, 1, 2, Q("2.2 mm")),
    Sketcher.Constraint("DistanceY", 0, 2, 0, 1, Q("50.2 mm")),
    Sketcher.Constraint("DistanceX", -1, 1, 0, 2, Q("1 mm")),
    Sketcher.Constraint("DistanceY", -1, 1, 2, 2, Q("67 mm")),
    Sketcher.Constraint("DistanceX", -1, 1, 4, 2, Q("29.44 mm")),
])
pocket1 = body.newObject("PartDesign::Pocket", "Pocket")
pocket1.Profile = sketch4
pocket1.Length = 4

doc.recompute()
